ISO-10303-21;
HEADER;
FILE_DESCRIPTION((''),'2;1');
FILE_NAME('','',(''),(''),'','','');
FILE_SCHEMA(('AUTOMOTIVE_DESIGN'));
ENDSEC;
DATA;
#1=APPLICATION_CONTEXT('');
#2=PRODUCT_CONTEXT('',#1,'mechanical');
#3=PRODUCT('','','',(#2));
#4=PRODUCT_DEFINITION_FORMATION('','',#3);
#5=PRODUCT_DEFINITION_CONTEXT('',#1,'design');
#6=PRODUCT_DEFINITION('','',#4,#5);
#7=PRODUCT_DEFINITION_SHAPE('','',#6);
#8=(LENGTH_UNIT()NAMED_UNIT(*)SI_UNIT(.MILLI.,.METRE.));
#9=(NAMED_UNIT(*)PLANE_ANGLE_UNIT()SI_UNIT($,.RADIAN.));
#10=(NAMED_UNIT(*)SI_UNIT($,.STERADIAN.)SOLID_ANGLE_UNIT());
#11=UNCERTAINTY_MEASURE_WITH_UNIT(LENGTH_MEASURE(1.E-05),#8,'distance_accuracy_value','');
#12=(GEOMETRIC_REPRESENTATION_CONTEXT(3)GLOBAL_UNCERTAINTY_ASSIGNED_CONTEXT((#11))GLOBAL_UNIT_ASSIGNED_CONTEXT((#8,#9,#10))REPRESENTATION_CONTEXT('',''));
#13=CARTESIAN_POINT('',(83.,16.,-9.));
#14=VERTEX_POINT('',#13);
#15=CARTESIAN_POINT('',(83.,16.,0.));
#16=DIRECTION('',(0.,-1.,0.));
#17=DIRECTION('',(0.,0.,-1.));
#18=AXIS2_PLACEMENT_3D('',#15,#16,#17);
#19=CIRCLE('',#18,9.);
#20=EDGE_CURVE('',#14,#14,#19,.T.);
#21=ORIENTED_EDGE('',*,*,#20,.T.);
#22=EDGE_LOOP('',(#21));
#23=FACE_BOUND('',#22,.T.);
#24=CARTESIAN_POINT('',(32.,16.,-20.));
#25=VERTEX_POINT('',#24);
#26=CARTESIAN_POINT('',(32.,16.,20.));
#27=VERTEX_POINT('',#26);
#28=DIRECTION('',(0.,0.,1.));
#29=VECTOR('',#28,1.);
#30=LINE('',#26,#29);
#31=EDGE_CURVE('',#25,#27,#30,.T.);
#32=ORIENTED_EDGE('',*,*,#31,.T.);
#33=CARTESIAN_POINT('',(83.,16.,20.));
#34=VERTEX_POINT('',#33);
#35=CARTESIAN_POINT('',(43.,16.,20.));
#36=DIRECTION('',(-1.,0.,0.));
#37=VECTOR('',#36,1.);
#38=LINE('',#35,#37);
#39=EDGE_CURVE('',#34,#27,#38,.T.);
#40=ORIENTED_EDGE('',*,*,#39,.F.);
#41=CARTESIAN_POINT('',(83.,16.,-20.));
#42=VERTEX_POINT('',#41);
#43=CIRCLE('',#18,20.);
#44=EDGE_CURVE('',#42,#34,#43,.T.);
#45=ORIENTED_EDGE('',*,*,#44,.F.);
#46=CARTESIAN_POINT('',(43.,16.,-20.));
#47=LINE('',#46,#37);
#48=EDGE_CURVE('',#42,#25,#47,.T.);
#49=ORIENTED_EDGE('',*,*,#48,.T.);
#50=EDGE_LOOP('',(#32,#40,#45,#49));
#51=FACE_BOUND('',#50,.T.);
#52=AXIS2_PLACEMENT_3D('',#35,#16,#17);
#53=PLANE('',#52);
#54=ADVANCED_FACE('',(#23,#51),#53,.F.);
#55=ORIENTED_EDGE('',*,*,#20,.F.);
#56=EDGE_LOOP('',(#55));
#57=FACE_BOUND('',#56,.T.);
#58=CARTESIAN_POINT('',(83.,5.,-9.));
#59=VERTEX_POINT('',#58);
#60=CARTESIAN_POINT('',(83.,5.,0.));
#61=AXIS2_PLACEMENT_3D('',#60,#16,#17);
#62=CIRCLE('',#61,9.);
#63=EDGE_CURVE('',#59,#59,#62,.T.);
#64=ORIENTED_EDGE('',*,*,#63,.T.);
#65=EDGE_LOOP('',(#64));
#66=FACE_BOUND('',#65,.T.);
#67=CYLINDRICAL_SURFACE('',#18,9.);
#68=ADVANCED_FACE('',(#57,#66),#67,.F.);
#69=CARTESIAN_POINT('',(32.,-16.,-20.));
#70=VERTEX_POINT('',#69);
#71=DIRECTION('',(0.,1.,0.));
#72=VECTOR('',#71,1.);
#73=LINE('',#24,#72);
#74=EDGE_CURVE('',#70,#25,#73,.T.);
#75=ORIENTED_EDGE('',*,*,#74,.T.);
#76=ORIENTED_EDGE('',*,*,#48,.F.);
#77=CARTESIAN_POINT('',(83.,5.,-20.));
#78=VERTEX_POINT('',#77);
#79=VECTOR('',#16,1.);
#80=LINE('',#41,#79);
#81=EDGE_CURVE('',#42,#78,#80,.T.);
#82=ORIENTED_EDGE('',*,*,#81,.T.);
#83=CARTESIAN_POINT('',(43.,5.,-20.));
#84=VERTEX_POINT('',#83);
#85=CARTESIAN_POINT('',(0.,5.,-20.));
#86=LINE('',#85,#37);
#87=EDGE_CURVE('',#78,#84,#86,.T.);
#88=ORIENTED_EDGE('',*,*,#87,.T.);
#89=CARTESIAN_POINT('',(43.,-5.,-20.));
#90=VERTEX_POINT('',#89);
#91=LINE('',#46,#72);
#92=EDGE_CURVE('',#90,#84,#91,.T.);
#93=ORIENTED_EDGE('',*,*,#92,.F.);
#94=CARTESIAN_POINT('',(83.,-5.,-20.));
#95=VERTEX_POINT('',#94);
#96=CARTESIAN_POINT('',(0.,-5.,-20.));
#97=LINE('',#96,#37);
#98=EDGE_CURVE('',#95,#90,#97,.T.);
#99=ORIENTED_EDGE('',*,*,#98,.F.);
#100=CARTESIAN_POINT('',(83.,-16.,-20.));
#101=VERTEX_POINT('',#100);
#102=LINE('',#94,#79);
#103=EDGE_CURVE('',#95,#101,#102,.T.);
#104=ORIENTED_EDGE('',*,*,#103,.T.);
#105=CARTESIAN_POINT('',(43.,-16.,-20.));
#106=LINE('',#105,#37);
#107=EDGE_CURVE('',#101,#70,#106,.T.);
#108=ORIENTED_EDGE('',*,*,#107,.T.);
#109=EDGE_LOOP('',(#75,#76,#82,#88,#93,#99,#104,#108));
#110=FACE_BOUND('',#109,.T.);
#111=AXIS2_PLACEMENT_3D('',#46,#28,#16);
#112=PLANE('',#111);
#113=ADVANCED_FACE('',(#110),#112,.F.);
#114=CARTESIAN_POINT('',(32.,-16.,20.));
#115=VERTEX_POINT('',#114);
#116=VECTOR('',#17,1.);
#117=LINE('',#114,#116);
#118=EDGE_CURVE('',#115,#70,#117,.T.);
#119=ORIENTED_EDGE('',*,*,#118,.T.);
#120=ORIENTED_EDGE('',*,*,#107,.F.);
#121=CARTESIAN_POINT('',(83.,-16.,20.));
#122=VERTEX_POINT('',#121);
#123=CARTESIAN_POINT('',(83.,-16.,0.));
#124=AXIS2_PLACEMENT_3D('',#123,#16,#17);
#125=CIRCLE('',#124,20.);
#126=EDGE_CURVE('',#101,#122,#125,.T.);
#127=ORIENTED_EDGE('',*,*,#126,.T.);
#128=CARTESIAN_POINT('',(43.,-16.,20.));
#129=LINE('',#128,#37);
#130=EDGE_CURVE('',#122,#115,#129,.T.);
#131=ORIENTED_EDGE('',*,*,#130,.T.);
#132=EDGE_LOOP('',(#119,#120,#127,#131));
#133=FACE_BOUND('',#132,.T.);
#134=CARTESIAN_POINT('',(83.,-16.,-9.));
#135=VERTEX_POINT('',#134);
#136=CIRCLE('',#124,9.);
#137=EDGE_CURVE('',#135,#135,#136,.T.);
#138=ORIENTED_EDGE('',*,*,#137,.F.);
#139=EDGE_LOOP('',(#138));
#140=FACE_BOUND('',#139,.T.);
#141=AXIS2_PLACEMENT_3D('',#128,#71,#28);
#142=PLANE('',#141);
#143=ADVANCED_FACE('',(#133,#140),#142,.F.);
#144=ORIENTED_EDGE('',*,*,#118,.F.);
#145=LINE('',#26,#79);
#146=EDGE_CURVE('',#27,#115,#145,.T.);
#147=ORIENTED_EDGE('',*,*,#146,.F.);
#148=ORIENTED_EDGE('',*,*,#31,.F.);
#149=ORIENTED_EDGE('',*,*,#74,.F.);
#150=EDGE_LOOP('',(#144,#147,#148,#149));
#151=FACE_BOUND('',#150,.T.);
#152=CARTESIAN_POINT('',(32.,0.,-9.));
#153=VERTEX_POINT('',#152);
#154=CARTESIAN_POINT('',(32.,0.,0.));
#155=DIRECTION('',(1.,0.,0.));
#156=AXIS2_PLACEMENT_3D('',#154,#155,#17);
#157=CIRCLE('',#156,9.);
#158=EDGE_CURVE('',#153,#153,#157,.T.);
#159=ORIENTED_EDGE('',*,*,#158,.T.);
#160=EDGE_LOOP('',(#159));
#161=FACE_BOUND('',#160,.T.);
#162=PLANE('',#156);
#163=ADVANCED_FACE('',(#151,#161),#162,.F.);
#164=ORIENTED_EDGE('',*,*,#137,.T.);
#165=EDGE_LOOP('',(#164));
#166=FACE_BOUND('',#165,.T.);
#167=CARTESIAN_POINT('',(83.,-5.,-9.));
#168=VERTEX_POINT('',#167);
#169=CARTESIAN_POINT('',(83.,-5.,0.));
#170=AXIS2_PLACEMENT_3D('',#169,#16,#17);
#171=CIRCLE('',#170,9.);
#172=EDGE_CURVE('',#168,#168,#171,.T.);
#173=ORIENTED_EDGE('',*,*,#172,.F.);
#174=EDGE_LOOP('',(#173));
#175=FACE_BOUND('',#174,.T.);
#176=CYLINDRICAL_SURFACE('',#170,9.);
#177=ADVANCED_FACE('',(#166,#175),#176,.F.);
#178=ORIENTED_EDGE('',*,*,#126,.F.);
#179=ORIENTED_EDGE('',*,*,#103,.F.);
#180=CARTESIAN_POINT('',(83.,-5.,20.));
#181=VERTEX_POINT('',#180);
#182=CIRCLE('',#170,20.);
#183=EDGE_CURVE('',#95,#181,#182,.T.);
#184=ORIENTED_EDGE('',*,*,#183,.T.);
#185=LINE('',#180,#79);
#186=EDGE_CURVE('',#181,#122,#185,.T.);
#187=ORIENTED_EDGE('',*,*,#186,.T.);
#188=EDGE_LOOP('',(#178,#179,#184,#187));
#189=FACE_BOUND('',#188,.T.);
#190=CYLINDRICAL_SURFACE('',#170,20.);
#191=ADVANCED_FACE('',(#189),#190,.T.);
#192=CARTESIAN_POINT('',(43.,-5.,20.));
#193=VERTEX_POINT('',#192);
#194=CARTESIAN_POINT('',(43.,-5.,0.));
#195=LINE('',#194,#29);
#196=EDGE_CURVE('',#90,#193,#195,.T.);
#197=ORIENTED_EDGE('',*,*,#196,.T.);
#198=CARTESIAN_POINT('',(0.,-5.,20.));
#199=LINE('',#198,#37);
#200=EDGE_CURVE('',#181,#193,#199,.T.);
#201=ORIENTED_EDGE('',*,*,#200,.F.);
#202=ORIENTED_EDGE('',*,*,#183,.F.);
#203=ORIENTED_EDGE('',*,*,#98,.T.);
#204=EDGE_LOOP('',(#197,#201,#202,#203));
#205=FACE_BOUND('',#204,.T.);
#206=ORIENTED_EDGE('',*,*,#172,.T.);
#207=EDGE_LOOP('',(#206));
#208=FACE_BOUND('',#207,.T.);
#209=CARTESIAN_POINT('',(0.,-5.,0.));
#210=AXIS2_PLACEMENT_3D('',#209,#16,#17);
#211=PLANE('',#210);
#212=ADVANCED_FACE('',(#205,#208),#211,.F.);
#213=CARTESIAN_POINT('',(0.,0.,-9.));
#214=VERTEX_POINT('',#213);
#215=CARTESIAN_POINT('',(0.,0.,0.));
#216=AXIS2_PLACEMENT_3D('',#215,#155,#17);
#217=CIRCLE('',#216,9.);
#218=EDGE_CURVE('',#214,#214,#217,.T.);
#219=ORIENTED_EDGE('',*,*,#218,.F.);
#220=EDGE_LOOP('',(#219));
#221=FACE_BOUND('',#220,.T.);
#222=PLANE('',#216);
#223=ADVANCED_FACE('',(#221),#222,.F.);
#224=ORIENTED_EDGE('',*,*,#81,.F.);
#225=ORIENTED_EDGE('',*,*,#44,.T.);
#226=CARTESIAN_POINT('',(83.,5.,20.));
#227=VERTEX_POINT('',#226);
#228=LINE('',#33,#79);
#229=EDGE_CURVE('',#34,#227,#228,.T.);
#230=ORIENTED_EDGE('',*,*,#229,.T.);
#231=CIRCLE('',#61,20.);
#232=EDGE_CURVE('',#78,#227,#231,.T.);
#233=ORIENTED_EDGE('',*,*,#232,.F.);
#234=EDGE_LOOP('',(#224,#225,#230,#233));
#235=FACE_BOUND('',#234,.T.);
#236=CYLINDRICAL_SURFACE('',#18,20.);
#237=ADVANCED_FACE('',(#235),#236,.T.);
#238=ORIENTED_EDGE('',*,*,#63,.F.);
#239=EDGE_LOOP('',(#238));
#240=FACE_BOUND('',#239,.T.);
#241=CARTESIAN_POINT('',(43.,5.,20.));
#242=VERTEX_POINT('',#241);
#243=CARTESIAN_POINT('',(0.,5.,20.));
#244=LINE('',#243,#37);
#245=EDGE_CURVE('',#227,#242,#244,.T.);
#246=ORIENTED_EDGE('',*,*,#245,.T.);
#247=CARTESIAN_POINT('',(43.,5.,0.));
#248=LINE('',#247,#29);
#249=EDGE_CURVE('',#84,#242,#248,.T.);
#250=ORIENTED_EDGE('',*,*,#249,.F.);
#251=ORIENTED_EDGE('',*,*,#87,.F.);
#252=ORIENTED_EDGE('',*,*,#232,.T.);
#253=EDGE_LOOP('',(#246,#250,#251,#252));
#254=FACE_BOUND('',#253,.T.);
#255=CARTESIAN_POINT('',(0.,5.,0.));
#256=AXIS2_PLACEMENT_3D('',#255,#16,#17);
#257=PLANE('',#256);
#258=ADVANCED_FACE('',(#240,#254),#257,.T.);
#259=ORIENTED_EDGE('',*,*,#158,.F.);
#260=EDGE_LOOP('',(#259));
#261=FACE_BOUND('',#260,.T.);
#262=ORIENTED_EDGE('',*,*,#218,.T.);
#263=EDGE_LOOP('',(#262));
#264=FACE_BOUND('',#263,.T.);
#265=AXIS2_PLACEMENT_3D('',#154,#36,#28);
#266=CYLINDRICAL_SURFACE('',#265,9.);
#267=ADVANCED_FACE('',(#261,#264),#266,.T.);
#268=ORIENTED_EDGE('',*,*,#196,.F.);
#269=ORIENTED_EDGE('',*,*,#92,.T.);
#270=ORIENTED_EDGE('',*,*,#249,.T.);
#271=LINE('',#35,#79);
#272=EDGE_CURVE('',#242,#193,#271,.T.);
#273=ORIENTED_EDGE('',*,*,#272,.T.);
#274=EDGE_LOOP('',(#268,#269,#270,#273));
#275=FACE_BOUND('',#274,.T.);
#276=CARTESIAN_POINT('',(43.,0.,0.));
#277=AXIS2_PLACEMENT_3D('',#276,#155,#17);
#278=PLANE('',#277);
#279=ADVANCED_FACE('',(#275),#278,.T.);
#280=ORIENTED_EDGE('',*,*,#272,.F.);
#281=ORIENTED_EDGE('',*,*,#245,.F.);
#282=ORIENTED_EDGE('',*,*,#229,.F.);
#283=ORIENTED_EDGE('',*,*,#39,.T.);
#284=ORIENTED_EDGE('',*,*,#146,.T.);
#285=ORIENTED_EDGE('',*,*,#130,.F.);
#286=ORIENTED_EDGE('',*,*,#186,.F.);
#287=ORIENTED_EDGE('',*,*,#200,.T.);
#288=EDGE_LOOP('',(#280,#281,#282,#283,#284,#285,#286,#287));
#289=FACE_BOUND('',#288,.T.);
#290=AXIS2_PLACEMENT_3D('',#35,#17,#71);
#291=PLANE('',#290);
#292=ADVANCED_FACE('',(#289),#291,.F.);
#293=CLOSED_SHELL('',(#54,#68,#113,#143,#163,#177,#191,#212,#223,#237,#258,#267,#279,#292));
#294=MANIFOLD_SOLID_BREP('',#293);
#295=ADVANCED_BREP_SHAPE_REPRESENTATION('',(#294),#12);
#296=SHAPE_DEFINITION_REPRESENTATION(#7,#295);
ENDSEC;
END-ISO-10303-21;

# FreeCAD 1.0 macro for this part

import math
import FreeCAD as App
import Part
import Sketcher
Q = App.Units.Quantity

doc = App.newDocument("Part")
body = doc.addObject("PartDesign::Body", "Body")

# Sketch on YZ plane
sketch1 = body.newObject("Sketcher::SketchObject", "Sketch")
sketch1.AttachmentSupport = (doc.getObject("YZ_Plane"), [""])
sketch1.MapMode = "FlatFace"
sketch1.addGeometry(Part.Circle(App.Vector(0, 0, 0), App.Vector(0, 0, 1), 9), False)
sketch1.addConstraint(Sketcher.Constraint("Coincident", 0, 3, -1, 1))
sketch1.addConstraint(Sketcher.Constraint("Diameter", 0, Q("18 mm")))
pad1 = body.newObject("PartDesign::Pad", "Pad")
pad1.Profile = sketch1
pad1.Length = 32

# Sketch on YZ plane
sketch2 = body.newObject("Sketcher::SketchObject", "Sketch001")
sketch2.AttachmentSupport = (doc.getObject("YZ_Plane"), [""])
sketch2.MapMode = "FlatFace"
sketch2.AttachmentOffset = App.Placement(App.Vector(0, 0, 32), App.Rotation())
sketch2.addGeometry(Part.LineSegment(App.Vector(16, 20, 0), App.Vector(-16, 20, 0)), False)
sketch2.addGeometry(Part.LineSegment(App.Vector(-16, 20, 0), App.Vector(-16, -20, 0)), False)
sketch2.addGeometry(Part.LineSegment(App.Vector(-16, -20, 0), App.Vector(16, -20, 0)), False)
sketch2.addGeometry(Part.LineSegment(App.Vector(16, -20, 0), App.Vector(16, 20, 0)), False)
sketch2.addConstraint(Sketcher.Constraint("Coincident", 0, 2, 1, 1))
sketch2.addConstraint(Sketcher.Constraint("Coincident", 1, 2, 2, 1))
sketch2.addConstraint(Sketcher.Constraint("Coincident", 2, 2, 3, 1))
sketch2.addConstraint(Sketcher.Constraint("Coincident", 3, 2, 0, 1))
sketch2.addConstraint(Sketcher.Constraint("Horizontal", 0))
sketch2.addConstraint(Sketcher.Constraint("Vertical", 1))
sketch2.addConstraint(Sketcher.Constraint("Horizontal", 2))
sketch2.addConstraint(Sketcher.Constraint("Vertical", 3))
sketch2.addConstraint(Sketcher.Constraint("Symmetric", 0, 2, 2, 2, -1, 1))
sketch2.addConstraint(Sketcher.Constraint("DistanceX", 0, 2, 0, 1, Q("32 mm")))
sketch2.addConstraint(Sketcher.Constraint("DistanceY", 1, 2, 1, 1, Q("40 mm")))
pad2 = body.newObject("PartDesign::Pad", "Pad001")
pad2.Profile = sketch2
pad2.Length = 11

# Sketch on XZ plane
sketch3 = body.newObject("Sketcher::SketchObject", "Sketch002")
sketch3.AttachmentSupport = (doc.getObject("XZ_Plane"), [""])
sketch3.MapMode = "FlatFace"
sketch3.AttachmentOffset = App.Placement(App.Vector(0, 0, 16), App.Rotation())
sketch3.addGeometry(Part.LineSegment(App.Vector(43, -20, 0), App.Vector(83, -20, 0)), False)
sketch3.addGeometry(Part.ArcOfCircle(Part.Circle(App.Vector(83, 0, 0), App.Vector(0, 0, 1), 20), math.radians(-90), math.radians(90)), False)
sketch3.addGeometry(Part.LineSegment(App.Vector(83, 20, 0), App.Vector(43, 20, 0)), False)
sketch3.addGeometry(Part.LineSegment(App.Vector(43, 20, 0), App.Vector(43, -20, 0)), False)
sketch3.addGeometry(Part.Circle(App.Vector(83, 0, 0), App.Vector(0, 0, 1), 9), False)
sketch3.addConstraint(Sketcher.Constraint("Tangent", 0, 2, 1, 1))
sketch3.addConstraint(Sketcher.Constraint("Tangent", 1, 2, 2, 1))
sketch3.addConstraint(Sketcher.Constraint("Coincident", 2, 2, 3, 1))
sketch3.addConstraint(Sketcher.Constraint("Coincident", 3, 2, 0, 1))
sketch3.addConstraint(Sketcher.Constraint("Horizontal", 0))
sketch3.addConstraint(Sketcher.Constraint("Horizontal", 2))
sketch3.addConstraint(Sketcher.Constraint("Vertical", 3))
sketch3.addConstraint(Sketcher.Constraint("Coincident", 4, 3, 1, 3))
sketch3.addConstraint(Sketcher.Constraint("PointOnObject", 1, 3, -1))
sketch3.addConstraint(Sketcher.Constraint("Equal", 2, 3))
sketch3.addConstraint(Sketcher.Constraint("Diameter", 4, Q("18 mm")))
sketch3.addConstraint(Sketcher.Constraint("Radius", 1, Q("20 mm")))
sketch3.addConstraint(Sketcher.Constraint("DistanceX", -1, 1, 1, 3, Q("83 mm")))
pad3 = body.newObject("PartDesign::Pad", "Pad002")
pad3.Profile = sketch3
pad3.Length = 11
pad3.Reversed = True
doc.recompute()

linearpattern = body.newObject("PartDesign::LinearPattern", "LinearPattern")
linearpattern.Originals = [pad3]
linearpattern.Direction = (doc.getObject("Y_Axis"), [""])
linearpattern.Mode = "offset"
linearpattern.Offset = 21
linearpattern.Occurrences = 2
body.Tip = linearpattern

doc.recompute()
